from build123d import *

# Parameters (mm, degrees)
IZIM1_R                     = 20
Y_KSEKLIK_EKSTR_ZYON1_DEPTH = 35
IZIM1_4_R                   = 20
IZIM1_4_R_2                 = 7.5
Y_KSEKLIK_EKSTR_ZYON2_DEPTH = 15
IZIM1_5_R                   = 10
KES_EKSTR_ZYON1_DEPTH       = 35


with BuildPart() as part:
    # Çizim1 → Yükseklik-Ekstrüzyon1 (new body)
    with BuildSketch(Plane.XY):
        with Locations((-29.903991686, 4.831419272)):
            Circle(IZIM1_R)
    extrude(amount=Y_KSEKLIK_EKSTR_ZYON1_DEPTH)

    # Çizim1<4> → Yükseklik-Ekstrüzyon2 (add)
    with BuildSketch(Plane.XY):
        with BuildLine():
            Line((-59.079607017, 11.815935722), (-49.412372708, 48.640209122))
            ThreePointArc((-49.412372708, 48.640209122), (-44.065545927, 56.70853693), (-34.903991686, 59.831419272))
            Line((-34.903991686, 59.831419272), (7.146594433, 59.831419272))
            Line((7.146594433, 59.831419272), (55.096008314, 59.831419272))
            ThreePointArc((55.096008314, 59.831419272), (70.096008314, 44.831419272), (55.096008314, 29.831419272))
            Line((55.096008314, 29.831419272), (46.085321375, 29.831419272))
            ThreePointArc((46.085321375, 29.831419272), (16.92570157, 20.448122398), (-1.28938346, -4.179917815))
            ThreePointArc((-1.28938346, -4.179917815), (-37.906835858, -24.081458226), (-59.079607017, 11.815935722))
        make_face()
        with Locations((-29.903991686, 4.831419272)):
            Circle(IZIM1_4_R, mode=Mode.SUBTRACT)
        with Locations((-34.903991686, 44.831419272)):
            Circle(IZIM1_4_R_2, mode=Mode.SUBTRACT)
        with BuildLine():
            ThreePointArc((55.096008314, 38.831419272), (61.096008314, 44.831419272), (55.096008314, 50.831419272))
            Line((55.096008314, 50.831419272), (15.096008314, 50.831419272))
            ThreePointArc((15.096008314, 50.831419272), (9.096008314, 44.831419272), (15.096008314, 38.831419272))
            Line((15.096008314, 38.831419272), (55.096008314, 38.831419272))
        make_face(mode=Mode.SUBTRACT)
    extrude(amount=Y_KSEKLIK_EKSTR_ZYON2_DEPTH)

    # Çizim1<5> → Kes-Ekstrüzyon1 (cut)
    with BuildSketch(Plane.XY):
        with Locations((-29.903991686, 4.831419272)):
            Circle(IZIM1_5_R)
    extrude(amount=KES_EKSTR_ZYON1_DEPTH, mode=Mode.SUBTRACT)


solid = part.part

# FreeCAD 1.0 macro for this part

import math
import FreeCAD as App
import Part
import Sketcher
Q = App.Units.Quantity

doc = App.newDocument("Part")
body = doc.addObject("PartDesign::Body", "Body")

sketch1 = doc.addObject("Sketcher::SketchObject", "Sketch")
body.addObject(sketch1)
sketch1.AttachmentSupport = (doc.XY_Plane, [""])
sketch1.MapMode = "FlatFace"
sketch1.addGeometry(Part.Circle(App.Vector(-30, 5, 0), App.Vector(0, 0, 1), 20), False)
sketch1.addConstraint(Sketcher.Constraint("Diameter", 0, Q("40 mm")))
sketch1.addConstraint(Sketcher.Constraint("DistanceX", 0, 3, -1, 1, Q("29.903992 mm")))
sketch1.addConstraint(Sketcher.Constraint("DistanceY", -1, 1, 0, 3, Q("4.831419 mm")))
pad1 = doc.addObject("PartDesign::Pad", "Pad")
body.addObject(pad1)
pad1.Profile = sketch1
pad1.Length = 35

sketch2 = doc.addObject("Sketcher::SketchObject", "Sketch001")
body.addObject(sketch2)
sketch2.AttachmentSupport = (doc.XY_Plane, [""])
sketch2.MapMode = "FlatFace"
sketch2.addGeometry(Part.LineSegment(App.Vector(-49, 49, 0), App.Vector(-59, 12, 0)), False)
sketch2.addGeometry(Part.ArcOfCircle(Part.Circle(App.Vector(-30, 5, 0), App.Vector(0, 0, 1), 30), math.radians(167), math.radians(343)), False)
sketch2.addGeometry(Part.ArcOfCircle(Part.Circle(App.Vector(46, -20, 0), App.Vector(0, 0, 1), 50), math.radians(90), math.radians(161)), False)
sketch2.addGeometry(Part.LineSegment(App.Vector(46, 30, 0), App.Vector(55, 30, 0)), False)
sketch2.addGeometry(Part.ArcOfCircle(Part.Circle(App.Vector(55, 45, 0), App.Vector(0, 0, 1), 15), math.radians(-90), math.radians(90)), False)
sketch2.addGeometry(Part.LineSegment(App.Vector(55, 60, 0), App.Vector(-35, 60, 0)), False)
sketch2.addGeometry(Part.ArcOfCircle(Part.Circle(App.Vector(-35, 45, 0), App.Vector(0, 0, 1), 15), math.radians(90), math.radians(165)), False)
sketch2.addGeometry(Part.Circle(App.Vector(-30, 5, 0), App.Vector(0, 0, 1), 20), False)
sketch2.addGeometry(Part.LineSegment(App.Vector(55, 39, 0), App.Vector(15, 39, 0)), False)
sketch2.addGeometry(Part.ArcOfCircle(Part.Circle(App.Vector(15, 45, 0), App.Vector(0, 0, 1), 6), math.radians(90), math.radians(270)), False)
sketch2.addGeometry(Part.LineSegment(App.Vector(15, 51, 0), App.Vector(55, 51, 0)), False)
sketch2.addGeometry(Part.ArcOfCircle(Part.Circle(App.Vector(55, 45, 0), App.Vector(0, 0, 1), 6), math.radians(-90), math.radians(90)), False)
sketch2.addGeometry(Part.Circle(App.Vector(-35, 45, 0), App.Vector(0, 0, 1), 8), False)
sketch2.addConstraint(Sketcher.Constraint("Coincident", 0, 2, 1, 1))
sketch2.addConstraint(Sketcher.Constraint("Coincident", 1, 2, 2, 2))
sketch2.addConstraint(Sketcher.Constraint("Tangent", 2, 1, 3, 1))
sketch2.addConstraint(Sketcher.Constraint("Tangent", 3, 2, 4, 1))
sketch2.addConstraint(Sketcher.Constraint("Tangent", 4, 2, 5, 1))
sketch2.addConstraint(Sketcher.Constraint("Tangent", 5, 2, 6, 1))
sketch2.addConstraint(Sketcher.Constraint("Tangent", 6, 2, 0, 1))
sketch2.addConstraint(Sketcher.Constraint("Tangent", 8, 2, 9, 2))
sketch2.addConstraint(Sketcher.Constraint("Tangent", 9, 1, 10, 1))
sketch2.addConstraint(Sketcher.Constraint("Tangent", 10, 2, 11, 2))
sketch2.addConstraint(Sketcher.Constraint("Tangent", 11, 1, 8, 1))
sketch2.addConstraint(Sketcher.Constraint("Horizontal", 3))
sketch2.addConstraint(Sketcher.Constraint("Horizontal", 5))
sketch2.addConstraint(Sketcher.Constraint("Horizontal", 8))
sketch2.addConstraint(Sketcher.Constraint("Horizontal", 10))
sketch2.addConstraint(Sketcher.Constraint("Coincident", 7, 3, 1, 3))
sketch2.addConstraint(Sketcher.Constraint("Coincident", 11, 3, 4, 3))
sketch2.addConstraint(Sketcher.Constraint("Coincident", 12, 3, 6, 3))
sketch2.addConstraint(Sketcher.Constraint("Equal", 4, 6))
sketch2.addConstraint(Sketcher.Constraint("Diameter", 7, Q("40 mm")))
sketch2.addConstraint(Sketcher.Constraint("Diameter", 12, Q("15 mm")))
sketch2.addConstraint(Sketcher.Constraint("Radius", 1, Q("30 mm")))
sketch2.addConstraint(Sketcher.Constraint("Radius", 2, Q("50 mm")))
sketch2.addConstraint(Sketcher.Constraint("Radius", 4, Q("15 mm")))
sketch2.addConstraint(Sketcher.Constraint("Radius", 9, Q("6 mm")))
sketch2.addConstraint(Sketcher.Constraint("DistanceX", 5, 2, 5, 1, Q("90 mm")))
sketch2.addConstraint(Sketcher.Constraint("DistanceX", 8, 2, 8, 1, Q("40 mm")))
sketch2.addConstraint(Sketcher.Constraint("DistanceY", 2, 3, 1, 3, Q("25 mm")))
sketch2.addConstraint(Sketcher.Constraint("DistanceX", 1, 3, 4, 3, Q("85 mm")))
sketch2.addConstraint(Sketcher.Constraint("Distance", 0, Q("38.07207 mm")))
sketch2.addConstraint(Sketcher.Constraint("DistanceX", 3, 1, 3, 2, Q("9.010687 mm")))
sketch2.addConstraint(Sketcher.Constraint("DistanceX", 1, 3, -1, 1, Q("29.903992 mm")))
sketch2.addConstraint(Sketcher.Constraint("DistanceY", -1, 1, 1, 3, Q("4.831419 mm")))
pad2 = doc.addObject("PartDesign::Pad", "Pad001")
body.addObject(pad2)
pad2.Profile = sketch2
pad2.Length = 15

sketch3 = doc.addObject("Sketcher::SketchObject", "Sketch002")
body.addObject(sketch3)
sketch3.AttachmentSupport = (doc.XY_Plane, [""])
sketch3.MapMode = "FlatFace"
sketch3.addGeometry(Part.Circle(App.Vector(-30, 5, 0), App.Vector(0, 0, 1), 10), False)
sketch3.addConstraint(Sketcher.Constraint("Diameter", 0, Q("20 mm")))
sketch3.addConstraint(Sketcher.Constraint("DistanceX", 0, 3, -1, 1, Q("29.903992 mm")))
sketch3.addConstraint(Sketcher.Constraint("DistanceY", -1, 1, 0, 3, Q("4.831419 mm")))
pocket1 = doc.addObject("PartDesign::Pocket", "Pocket")
body.addObject(pocket1)
pocket1.Profile = sketch3
pocket1.Length = 35
pocket1.Reversed = True

doc.recompute()
